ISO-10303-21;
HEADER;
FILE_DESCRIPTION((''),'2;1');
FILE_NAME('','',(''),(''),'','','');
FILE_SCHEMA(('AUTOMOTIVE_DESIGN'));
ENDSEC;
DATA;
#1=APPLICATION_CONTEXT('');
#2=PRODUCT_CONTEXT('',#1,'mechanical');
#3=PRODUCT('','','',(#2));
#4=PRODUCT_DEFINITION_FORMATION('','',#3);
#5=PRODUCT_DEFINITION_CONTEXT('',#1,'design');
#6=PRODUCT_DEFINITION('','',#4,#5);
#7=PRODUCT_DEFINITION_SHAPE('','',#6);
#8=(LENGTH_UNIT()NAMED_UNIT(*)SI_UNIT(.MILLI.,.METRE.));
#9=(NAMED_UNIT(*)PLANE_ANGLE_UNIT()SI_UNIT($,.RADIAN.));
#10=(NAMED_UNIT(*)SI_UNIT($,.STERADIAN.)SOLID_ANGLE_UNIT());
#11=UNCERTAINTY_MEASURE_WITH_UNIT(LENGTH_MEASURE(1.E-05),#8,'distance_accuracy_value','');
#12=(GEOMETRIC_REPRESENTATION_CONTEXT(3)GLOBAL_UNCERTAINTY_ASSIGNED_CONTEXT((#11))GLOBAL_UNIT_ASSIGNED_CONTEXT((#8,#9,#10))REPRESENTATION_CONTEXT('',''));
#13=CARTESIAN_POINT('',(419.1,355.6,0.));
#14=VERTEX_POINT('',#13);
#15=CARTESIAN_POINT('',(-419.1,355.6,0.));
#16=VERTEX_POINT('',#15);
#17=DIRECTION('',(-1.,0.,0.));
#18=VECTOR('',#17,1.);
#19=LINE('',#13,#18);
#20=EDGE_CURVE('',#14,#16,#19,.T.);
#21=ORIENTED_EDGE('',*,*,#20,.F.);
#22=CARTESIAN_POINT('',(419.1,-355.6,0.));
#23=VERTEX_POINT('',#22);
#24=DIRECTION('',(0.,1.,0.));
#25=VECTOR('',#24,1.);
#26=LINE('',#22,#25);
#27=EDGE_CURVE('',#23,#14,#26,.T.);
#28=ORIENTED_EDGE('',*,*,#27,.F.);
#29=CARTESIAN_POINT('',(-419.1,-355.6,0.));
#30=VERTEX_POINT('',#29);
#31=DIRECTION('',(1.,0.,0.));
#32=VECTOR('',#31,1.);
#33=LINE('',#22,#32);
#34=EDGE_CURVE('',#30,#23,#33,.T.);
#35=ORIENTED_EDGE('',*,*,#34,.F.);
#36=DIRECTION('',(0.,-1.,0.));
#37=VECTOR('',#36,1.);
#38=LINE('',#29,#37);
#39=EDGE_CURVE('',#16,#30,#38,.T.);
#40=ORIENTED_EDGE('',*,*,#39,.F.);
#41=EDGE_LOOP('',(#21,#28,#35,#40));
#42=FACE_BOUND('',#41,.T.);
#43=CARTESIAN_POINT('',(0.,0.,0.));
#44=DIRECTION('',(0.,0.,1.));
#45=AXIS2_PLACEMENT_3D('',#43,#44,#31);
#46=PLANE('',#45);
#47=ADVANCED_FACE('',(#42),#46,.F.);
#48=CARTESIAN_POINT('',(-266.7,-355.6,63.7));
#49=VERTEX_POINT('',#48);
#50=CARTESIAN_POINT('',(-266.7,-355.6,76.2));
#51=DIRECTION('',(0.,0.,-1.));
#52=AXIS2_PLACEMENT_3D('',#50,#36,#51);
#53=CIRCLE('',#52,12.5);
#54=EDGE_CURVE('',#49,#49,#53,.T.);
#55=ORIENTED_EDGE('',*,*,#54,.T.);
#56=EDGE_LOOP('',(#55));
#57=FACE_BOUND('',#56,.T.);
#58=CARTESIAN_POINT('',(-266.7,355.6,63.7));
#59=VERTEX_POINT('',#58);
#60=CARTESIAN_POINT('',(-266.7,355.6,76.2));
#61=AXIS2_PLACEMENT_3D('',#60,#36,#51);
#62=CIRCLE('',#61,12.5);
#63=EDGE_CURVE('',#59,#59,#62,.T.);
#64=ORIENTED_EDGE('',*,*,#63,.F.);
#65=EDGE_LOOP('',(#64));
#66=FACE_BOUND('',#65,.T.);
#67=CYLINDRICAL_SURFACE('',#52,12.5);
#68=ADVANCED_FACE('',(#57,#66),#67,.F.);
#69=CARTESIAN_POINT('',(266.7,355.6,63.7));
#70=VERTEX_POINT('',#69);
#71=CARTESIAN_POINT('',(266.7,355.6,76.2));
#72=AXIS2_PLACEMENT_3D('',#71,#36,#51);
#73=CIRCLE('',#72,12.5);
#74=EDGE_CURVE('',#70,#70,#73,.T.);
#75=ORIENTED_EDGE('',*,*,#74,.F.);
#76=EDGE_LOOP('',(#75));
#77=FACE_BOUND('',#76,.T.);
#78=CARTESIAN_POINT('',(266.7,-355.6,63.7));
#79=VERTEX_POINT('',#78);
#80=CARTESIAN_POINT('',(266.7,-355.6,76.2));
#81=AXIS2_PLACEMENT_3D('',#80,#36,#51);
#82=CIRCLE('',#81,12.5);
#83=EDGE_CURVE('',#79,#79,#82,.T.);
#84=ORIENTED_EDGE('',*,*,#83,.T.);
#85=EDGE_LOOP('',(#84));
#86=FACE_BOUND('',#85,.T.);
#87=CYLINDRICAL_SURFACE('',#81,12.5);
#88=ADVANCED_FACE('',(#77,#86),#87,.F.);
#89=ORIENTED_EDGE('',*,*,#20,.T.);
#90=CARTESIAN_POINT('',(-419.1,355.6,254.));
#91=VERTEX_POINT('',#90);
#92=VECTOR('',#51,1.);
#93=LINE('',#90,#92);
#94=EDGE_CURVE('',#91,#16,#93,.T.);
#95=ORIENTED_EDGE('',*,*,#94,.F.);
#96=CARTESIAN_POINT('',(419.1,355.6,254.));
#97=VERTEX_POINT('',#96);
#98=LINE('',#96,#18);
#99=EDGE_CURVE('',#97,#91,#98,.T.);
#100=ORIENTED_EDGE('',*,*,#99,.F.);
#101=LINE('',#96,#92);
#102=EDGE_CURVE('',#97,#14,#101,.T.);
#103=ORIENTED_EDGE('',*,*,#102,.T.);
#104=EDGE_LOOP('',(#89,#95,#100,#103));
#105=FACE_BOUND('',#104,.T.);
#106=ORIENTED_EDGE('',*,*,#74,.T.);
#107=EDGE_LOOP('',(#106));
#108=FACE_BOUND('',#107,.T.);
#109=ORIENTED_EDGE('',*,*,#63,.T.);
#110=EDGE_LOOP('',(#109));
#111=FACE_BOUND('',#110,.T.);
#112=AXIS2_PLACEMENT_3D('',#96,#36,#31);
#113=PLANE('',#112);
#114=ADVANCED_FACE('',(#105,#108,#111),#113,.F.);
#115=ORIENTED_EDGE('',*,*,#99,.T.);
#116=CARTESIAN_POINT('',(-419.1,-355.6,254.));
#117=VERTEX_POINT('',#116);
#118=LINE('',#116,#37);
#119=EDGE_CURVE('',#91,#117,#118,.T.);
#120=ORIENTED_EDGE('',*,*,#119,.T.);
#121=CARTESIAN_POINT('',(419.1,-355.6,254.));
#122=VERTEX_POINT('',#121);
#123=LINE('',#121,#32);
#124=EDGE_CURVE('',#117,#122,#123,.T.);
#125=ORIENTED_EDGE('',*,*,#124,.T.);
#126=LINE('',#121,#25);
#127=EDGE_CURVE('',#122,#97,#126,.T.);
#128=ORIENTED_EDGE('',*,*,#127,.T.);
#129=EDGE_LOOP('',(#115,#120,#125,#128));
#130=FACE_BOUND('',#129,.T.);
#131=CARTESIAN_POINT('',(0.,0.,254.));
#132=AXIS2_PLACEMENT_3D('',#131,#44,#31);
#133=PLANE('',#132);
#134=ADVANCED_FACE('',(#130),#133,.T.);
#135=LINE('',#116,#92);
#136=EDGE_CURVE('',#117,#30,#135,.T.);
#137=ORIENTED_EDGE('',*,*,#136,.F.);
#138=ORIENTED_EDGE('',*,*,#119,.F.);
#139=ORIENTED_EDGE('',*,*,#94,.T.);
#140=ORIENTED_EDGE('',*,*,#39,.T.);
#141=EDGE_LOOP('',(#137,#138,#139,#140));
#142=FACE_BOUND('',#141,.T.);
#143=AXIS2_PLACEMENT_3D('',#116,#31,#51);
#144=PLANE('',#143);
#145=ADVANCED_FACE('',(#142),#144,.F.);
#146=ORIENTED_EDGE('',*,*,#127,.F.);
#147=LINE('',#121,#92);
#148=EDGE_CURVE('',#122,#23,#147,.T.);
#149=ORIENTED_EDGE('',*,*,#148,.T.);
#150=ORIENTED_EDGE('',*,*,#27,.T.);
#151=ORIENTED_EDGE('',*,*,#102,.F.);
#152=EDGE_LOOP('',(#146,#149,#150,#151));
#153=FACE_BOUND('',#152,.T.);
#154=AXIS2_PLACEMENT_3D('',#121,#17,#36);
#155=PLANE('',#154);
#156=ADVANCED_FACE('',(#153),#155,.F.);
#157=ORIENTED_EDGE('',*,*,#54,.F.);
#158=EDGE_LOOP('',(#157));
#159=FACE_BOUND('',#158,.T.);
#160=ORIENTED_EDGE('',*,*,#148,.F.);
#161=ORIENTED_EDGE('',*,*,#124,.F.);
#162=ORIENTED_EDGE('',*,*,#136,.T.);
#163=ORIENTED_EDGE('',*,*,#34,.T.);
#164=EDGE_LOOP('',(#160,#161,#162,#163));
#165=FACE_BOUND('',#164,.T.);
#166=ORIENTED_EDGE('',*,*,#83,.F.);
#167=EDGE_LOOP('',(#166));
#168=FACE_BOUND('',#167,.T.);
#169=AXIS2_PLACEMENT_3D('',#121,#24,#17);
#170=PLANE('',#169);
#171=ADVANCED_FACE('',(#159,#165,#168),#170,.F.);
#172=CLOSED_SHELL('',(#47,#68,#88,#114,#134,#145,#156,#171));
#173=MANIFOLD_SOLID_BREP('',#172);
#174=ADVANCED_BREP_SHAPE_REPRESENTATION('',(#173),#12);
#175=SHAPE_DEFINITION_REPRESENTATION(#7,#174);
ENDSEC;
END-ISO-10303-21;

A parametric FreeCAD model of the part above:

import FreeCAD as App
import Part
import Sketcher

V = App.Vector
Q = App.Units.Quantity

doc = App.newDocument("Part")
body = doc.addObject("PartDesign::Body", "Body")

# Sketch on XY plane
sketch1 = body.newObject("Sketcher::SketchObject", "Sketch")
sketch1.AttachmentSupport = (doc.getObject("XY_Plane"), [""])
sketch1.MapMode = "FlatFace"
sketch1.addGeometry([
    Part.LineSegment(V(-419, 356, 0), V(-419, -356, 0)),
    Part.LineSegment(V(-419, -356, 0), V(419, -356, 0)),
    Part.LineSegment(V(419, -356, 0), V(419, 356, 0)),
    Part.LineSegment(V(419, 356, 0), V(-419, 356, 0)),
], False)
sketch1.addConstraint([
    Sketcher.Constraint("Coincident", 0, 2, 1, 1),
    Sketcher.Constraint("Coincident", 1, 2, 2, 1),
    Sketcher.Constraint("Coincident", 2, 2, 3, 1),
    Sketcher.Constraint("Coincident", 3, 2, 0, 1),
    Sketcher.Constraint("Vertical", 0),
    Sketcher.Constraint("Horizontal", 1),
    Sketcher.Constraint("Vertical", 2),
    Sketcher.Constraint("Horizontal", 3),
    Sketcher.Constraint("Symmetric", 0, 2, 2, 2, -1, 1),
    Sketcher.Constraint("DistanceX", 1, 1, 1, 2, Q("33 in")),
    Sketcher.Constraint("DistanceY", 0, 2, 0, 1, Q("28 in")),
])
pad1 = body.newObject("PartDesign::Pad", "Pad")
pad1.Profile = sketch1
pad1.Length = Q("10 in")

# Sketch on XZ plane
sketch2 = body.newObject("Sketcher::SketchObject", "Sketch001")
sketch2.AttachmentSupport = (doc.getObject("XZ_Plane"), [""])
sketch2.MapMode = "FlatFace"
sketch2.AttachmentOffset = App.Placement(V(0, 0, 14 * 25.4), App.Rotation())
sketch2.addGeometry([
    Part.Circle(V(-267, 76, 0), V(0, 0, 1), 12),
    Part.Circle(V(267, 76, 0), V(0, 0, 1), 12),
], False)
sketch2.addConstraint([
    Sketcher.Constraint("Equal", 0, 1),
    Sketcher.Constraint("Symmetric", 0, 3, 1, 3, -2),
    Sketcher.Constraint("DistanceY", -1, 1, 0, 3, Q("3 in")),
    Sketcher.Constraint("DistanceX", 0, 3, 1, 3, Q("21 in")),
    Sketcher.Constraint("Diameter", 0, 25.0),
])
doc.recompute()
hole = body.newObject("PartDesign::Hole", "Hole")
hole.Profile = sketch2
hole.ThreadType = "None"
hole.Diameter = 25
hole.DepthType = "ThroughAll"

doc.recompute()
